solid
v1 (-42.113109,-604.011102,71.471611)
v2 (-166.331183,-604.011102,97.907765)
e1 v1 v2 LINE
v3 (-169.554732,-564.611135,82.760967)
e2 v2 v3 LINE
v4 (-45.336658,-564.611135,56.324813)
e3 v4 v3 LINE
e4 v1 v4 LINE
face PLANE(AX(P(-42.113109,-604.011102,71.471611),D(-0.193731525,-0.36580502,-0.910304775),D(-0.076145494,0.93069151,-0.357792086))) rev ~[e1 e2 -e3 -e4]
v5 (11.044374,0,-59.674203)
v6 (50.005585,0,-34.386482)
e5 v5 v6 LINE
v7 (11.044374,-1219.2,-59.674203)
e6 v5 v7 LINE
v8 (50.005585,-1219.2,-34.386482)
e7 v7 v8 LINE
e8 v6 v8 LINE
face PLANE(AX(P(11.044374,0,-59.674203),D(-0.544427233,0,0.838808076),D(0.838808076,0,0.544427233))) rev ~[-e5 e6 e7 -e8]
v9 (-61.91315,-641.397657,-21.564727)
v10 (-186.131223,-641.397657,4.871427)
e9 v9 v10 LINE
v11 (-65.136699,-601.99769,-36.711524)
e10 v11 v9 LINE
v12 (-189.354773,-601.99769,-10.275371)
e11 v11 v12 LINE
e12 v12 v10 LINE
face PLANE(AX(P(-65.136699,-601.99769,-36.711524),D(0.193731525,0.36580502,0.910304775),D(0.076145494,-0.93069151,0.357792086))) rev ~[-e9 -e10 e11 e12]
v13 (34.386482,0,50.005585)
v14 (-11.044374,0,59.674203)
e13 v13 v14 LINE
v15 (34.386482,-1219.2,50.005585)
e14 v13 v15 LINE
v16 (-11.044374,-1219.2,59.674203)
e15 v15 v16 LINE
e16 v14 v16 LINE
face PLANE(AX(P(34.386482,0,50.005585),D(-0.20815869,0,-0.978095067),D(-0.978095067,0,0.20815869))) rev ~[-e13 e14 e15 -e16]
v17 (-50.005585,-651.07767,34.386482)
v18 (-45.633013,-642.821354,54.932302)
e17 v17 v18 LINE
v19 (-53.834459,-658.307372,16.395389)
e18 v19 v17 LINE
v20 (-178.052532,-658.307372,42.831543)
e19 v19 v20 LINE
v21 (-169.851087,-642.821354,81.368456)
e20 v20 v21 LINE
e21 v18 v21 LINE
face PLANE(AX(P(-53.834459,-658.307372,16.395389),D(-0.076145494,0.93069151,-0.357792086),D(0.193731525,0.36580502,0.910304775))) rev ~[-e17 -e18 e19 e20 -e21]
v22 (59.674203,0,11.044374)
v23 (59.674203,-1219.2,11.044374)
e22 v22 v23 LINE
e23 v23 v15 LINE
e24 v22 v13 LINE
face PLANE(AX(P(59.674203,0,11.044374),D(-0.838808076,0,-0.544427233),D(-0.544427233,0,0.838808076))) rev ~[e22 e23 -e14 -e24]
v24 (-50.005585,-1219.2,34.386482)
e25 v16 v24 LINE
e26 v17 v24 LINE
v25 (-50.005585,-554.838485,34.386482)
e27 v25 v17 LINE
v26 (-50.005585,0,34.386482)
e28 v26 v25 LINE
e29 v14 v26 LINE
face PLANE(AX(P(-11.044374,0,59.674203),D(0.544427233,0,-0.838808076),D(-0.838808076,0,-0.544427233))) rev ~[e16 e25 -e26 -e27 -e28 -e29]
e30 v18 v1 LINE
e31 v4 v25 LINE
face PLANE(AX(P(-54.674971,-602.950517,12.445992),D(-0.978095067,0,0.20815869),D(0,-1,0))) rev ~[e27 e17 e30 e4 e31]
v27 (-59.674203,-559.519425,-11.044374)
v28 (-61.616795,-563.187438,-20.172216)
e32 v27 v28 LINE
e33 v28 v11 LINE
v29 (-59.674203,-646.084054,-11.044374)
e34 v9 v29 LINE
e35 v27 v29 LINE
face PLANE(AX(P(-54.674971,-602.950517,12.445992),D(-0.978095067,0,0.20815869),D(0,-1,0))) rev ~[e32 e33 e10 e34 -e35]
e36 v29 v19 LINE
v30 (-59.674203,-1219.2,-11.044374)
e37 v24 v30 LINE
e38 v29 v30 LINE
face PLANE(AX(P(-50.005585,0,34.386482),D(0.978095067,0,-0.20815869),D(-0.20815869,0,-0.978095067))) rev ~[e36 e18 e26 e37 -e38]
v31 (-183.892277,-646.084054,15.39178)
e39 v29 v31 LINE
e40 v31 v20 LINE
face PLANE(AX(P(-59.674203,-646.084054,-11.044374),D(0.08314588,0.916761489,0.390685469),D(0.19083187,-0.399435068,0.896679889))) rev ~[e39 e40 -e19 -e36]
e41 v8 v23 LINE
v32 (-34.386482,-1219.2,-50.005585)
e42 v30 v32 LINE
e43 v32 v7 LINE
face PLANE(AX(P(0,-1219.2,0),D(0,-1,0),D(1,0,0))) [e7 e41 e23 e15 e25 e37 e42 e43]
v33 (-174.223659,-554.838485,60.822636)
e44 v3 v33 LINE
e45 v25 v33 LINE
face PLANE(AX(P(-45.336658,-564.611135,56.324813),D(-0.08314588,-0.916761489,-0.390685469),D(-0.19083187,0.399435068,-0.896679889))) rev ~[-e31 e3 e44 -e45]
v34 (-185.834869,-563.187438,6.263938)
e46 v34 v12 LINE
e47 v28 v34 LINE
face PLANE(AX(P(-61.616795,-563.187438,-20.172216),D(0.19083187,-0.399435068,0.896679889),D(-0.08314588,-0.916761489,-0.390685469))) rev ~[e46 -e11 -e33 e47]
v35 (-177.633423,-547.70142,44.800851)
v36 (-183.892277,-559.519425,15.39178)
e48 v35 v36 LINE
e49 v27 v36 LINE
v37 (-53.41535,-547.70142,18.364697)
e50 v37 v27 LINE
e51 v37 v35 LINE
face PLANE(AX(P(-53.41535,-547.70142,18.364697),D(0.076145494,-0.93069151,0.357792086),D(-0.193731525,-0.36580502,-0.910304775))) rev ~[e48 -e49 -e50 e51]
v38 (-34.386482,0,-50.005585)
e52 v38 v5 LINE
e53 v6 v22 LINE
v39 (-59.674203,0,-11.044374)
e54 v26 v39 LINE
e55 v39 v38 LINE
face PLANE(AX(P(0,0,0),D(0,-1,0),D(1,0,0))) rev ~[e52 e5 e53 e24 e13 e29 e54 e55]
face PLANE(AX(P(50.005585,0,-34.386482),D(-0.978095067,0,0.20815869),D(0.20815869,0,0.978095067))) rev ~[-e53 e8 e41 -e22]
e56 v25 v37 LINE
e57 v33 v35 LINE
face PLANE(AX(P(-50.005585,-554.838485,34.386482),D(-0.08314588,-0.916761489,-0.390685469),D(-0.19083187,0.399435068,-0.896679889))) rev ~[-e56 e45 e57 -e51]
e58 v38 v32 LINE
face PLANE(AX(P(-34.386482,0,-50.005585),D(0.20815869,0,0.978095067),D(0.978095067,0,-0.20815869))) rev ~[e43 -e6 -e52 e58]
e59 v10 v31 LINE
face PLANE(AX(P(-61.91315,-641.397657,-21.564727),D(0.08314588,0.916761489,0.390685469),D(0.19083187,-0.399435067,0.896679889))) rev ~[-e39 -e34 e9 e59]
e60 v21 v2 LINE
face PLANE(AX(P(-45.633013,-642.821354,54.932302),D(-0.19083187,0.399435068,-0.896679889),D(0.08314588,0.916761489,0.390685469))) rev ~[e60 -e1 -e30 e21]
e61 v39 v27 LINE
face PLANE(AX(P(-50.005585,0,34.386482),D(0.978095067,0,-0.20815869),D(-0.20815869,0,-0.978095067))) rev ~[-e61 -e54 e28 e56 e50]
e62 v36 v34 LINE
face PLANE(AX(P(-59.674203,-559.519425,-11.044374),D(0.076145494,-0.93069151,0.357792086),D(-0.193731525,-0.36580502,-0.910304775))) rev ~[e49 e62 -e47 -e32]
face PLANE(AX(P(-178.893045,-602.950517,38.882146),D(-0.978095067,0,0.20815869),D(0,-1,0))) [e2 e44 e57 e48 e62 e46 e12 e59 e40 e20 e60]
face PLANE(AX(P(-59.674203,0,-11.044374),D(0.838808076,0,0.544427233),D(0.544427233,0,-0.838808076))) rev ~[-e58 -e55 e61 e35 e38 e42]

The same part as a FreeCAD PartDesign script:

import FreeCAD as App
import Part
import Sketcher

V = App.Vector
Q = App.Units.Quantity

doc = App.newDocument("Part")
body = doc.addObject("PartDesign::Body", "Body")

# Sketch on XZ plane
sketch1 = doc.addObject("Sketcher::SketchObject", "Sketch")
body.addObject(sketch1)
sketch1.AttachmentSupport = (doc.XZ_Plane, [""])
sketch1.MapMode = "FlatFace"
sketch1.addGeometry([
    Part.LineSegment(V(-50.005585, 34.386482, 0), V(-59.674203, -11.044374, 0)),  # 0
    Part.LineSegment(V(-59.674203, -11.044374, 0), V(-34.386482, -50.005585, 0)),  # 1
    Part.LineSegment(V(-34.386482, -50.005585, 0), V(11.044374, -59.674203, 0)),  # 2
    Part.LineSegment(V(11.044374, -59.674203, 0), V(50.005585, -34.386482, 0)),  # 3
    Part.LineSegment(V(50.005585, -34.386482, 0), V(59.674203, 11.044374, 0)),  # 4
    Part.LineSegment(V(59.674203, 11.044374, 0), V(34.386482, 50.005585, 0)),  # 5
    Part.LineSegment(V(34.386482, 50.005585, 0), V(-11.044374, 59.674203, 0)),  # 6
    Part.LineSegment(V(-11.044374, 59.674203, 0), V(-50.005585, 34.386482, 0)),  # 7
], False)
sketch1.addConstraint([
    Sketcher.Constraint("Coincident", 0, 2, 1, 1),
    Sketcher.Constraint("Coincident", 1, 2, 2, 1),
    Sketcher.Constraint("Coincident", 2, 2, 3, 1),
    Sketcher.Constraint("Coincident", 3, 2, 4, 1),
    Sketcher.Constraint("Coincident", 4, 2, 5, 1),
    Sketcher.Constraint("Coincident", 5, 2, 6, 1),
    Sketcher.Constraint("Coincident", 6, 2, 7, 1),
    Sketcher.Constraint("Coincident", 7, 2, 0, 1),
    Sketcher.Constraint("Symmetric", 0, 2, 4, 2, -1, 1),
    Sketcher.Constraint("Symmetric", 1, 2, 5, 2, -1, 1),
    Sketcher.Constraint("Symmetric", 2, 2, 6, 2, -1, 1),
    Sketcher.Constraint("Symmetric", 3, 2, 7, 2, -1, 1),
    Sketcher.Constraint("Perpendicular", 0, 2),
    Sketcher.Constraint("Perpendicular", 1, 3),
    Sketcher.Constraint("Equal", 0, 1),
    Sketcher.Constraint("Equal", 1, 2),
    Sketcher.Constraint("Equal", 2, 3),
    Sketcher.Constraint("DistanceX", 0, 2, 1, 2, 25.287721),
    Sketcher.Constraint("DistanceY", 1, 2, 0, 2, 38.961211),
    Sketcher.Constraint("DistanceY", 2, 2, 0, 2, 48.629829),
])
pad1 = doc.addObject("PartDesign::Pad", "Pad")
body.addObject(pad1)
pad1.Profile = sketch1
pad1.Length = Q("48 in")

# Sketch on an angled plane
sketch2 = doc.addObject("Sketcher::SketchObject", "Sketch001")
body.addObject(sketch2)
sketch2.Placement = App.Placement(V(-54.839894, 0, 11.671054), App.Rotation(V(0, -1, 0), V(0.20815869, 0, 0.978095067), V(-0.978095067, 0, 0.20815869), "ZXY"))
sketch2.addGeometry([
    Part.LineSegment(V(646.084054, -23.224151, 0), V(658.307372, 4.830139, 0)),  # 0
    Part.LineSegment(V(658.307372, 4.830139, 0), V(642.821354, 44.230106, 0)),  # 1
    Part.LineSegment(V(642.821354, 44.230106, 0), V(604.011102, 61.139821, 0)),  # 2
    Part.LineSegment(V(604.011102, 61.139821, 0), V(564.611135, 45.653803, 0)),  # 3
    Part.LineSegment(V(564.611135, 45.653803, 0), V(554.838485, 23.224151, 0)),  # 4
    Part.LineSegment(V(554.838485, 23.224151, 0), V(547.70142, 6.843551, 0)),  # 5
    Part.LineSegment(V(547.70142, 6.843551, 0), V(559.519425, -23.224151, 0)),  # 6
    Part.LineSegment(V(559.519425, -23.224151, 0), V(563.187438, -32.556416, 0)),  # 7
    Part.LineSegment(V(563.187438, -32.556416, 0), V(601.99769, -49.466131, 0)),  # 8
    Part.LineSegment(V(601.99769, -49.466131, 0), V(641.397657, -33.980113, 0)),  # 9
    Part.LineSegment(V(641.397657, -33.980113, 0), V(646.084054, -23.224151, 0)),  # 10
], False)
sketch2.addConstraint([
    Sketcher.Constraint("Coincident", 0, 2, 1, 1),
    Sketcher.Constraint("Coincident", 1, 2, 2, 1),
    Sketcher.Constraint("Coincident", 2, 2, 3, 1),
    Sketcher.Constraint("Coincident", 3, 2, 4, 1),
    Sketcher.Constraint("Coincident", 4, 2, 5, 1),
    Sketcher.Constraint("Coincident", 5, 2, 6, 1),
    Sketcher.Constraint("Coincident", 6, 2, 7, 1),
    Sketcher.Constraint("Coincident", 7, 2, 8, 1),
    Sketcher.Constraint("Coincident", 8, 2, 9, 1),
    Sketcher.Constraint("Coincident", 9, 2, 10, 1),
    Sketcher.Constraint("Coincident", 10, 2, 0, 1),
    Sketcher.Constraint("Perpendicular", 0, 2),
    Sketcher.Constraint("Perpendicular", 1, 3),
    Sketcher.Constraint("Perpendicular", 2, 4),
    Sketcher.Constraint("Parallel", 4, 5),
    Sketcher.Constraint("Perpendicular", 3, 6),
    Sketcher.Constraint("Parallel", 6, 7),
    Sketcher.Constraint("Perpendicular", 5, 8),
    Sketcher.Constraint("Perpendicular", 7, 9),
    Sketcher.Constraint("Perpendicular", 8, 10),
    Sketcher.Constraint("Horizontal", 6, 2, 10, 2),
    Sketcher.Constraint("Equal", 1, 2),
    Sketcher.Constraint("Equal", 2, 3),
    Sketcher.Constraint("Equal", 3, 8),
    Sketcher.Constraint("Equal", 8, 9),
    Sketcher.Constraint("DistanceX", -1, 1, 2, 2, 604.011102),
    Sketcher.Constraint("DistanceY", 5, 2, 4, 2, 16.380601),
    Sketcher.Constraint("DistanceX", 1, 2, 10, 2, 3.2627),
    Sketcher.Constraint("Distance", 4, 24.46618),
    Sketcher.Constraint("Distance", 6, 32.30684),
    Sketcher.Constraint("DistanceX", -1, 1, 0, 2, 658.307372),
    Sketcher.Constraint("DistanceY", -1, 1, 0, 2, 4.830139),
    Sketcher.Constraint("DistanceY", -1, 1, 2, 2, 61.139821),
])
pad2 = doc.addObject("PartDesign::Pad", "Pad001")
body.addObject(pad2)
pad2.Profile = sketch2
pad2.Length = Q("5 in")

doc.recompute()
